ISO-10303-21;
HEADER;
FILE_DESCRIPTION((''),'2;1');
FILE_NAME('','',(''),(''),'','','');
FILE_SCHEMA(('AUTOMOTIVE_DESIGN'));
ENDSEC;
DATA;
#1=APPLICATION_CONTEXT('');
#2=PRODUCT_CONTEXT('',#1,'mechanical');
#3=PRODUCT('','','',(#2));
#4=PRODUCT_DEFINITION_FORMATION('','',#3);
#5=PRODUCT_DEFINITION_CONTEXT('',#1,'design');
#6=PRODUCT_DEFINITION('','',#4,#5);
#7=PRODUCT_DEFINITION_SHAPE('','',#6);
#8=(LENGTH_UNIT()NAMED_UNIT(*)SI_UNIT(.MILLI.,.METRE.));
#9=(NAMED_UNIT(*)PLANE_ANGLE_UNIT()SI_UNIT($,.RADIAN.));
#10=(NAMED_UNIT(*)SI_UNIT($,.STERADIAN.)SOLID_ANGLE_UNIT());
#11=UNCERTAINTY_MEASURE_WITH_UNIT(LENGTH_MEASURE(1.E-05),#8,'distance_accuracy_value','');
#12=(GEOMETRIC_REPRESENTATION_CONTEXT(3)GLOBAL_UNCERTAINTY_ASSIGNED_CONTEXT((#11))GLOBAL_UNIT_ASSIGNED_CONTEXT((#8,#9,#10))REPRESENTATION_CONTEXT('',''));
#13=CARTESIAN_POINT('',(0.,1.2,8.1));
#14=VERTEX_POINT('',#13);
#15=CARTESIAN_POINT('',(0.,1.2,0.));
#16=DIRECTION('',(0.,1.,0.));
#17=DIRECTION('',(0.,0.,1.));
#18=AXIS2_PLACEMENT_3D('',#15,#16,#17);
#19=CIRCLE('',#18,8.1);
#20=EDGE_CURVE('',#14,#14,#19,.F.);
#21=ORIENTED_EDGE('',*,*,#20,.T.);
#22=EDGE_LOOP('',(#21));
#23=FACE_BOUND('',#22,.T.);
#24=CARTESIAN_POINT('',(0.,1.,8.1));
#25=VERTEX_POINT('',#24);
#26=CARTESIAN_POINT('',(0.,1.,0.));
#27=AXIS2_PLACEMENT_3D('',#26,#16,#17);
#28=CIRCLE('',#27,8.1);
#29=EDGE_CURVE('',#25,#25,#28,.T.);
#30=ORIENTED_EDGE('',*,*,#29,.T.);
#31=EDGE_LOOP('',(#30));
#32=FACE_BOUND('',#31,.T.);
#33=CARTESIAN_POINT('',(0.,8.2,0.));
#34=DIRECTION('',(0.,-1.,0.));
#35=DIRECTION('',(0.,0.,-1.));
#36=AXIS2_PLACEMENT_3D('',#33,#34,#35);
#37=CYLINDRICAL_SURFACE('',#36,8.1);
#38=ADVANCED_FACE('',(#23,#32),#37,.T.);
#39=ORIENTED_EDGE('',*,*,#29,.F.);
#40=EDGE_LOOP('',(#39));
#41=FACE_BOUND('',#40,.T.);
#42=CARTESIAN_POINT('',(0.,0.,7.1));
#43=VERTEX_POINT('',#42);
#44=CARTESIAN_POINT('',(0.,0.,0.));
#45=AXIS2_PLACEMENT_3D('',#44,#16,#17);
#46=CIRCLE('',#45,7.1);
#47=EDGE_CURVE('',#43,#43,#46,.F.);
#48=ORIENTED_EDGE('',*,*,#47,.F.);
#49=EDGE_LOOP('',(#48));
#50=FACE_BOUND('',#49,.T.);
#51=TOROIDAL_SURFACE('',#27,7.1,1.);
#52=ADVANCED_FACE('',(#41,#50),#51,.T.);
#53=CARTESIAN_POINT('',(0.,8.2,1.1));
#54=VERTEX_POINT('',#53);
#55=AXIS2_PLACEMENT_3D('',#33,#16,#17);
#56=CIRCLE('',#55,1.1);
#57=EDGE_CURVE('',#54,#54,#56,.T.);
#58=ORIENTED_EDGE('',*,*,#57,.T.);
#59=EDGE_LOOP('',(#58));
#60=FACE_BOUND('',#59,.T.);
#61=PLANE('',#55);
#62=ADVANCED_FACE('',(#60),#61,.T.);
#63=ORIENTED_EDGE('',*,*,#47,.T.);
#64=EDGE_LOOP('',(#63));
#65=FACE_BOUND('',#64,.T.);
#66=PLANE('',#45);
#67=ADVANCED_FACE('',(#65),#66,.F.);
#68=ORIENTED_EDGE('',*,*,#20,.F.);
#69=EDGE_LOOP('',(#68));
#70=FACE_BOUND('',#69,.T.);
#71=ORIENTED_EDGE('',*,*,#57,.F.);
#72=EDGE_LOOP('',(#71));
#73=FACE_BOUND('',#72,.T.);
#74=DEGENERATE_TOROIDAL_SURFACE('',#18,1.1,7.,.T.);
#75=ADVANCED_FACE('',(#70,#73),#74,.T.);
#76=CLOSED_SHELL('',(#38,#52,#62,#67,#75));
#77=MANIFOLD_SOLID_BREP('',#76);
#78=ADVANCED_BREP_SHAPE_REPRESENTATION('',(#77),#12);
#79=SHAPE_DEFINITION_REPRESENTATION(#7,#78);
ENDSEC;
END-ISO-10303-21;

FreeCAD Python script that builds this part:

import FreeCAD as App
import Part
import Sketcher


def edges_at(feature, points):
    """Names of the edges that pass closest to the given points."""
    edges = feature.Shape.Edges
    near = lambda p: min(range(len(edges)), key=lambda i: edges[i].distToShape(Part.Vertex(*p))[0])
    return sorted({f"Edge{near(p) + 1}" for p in points})

doc = App.newDocument("Part")
params = doc.addObject("Spreadsheet::Sheet", "Params")
for row, (alias, value) in enumerate([
    ("sketch1_diameter", "16.2 mm"),
    ("pad1_length", "8.2 mm"),
    ("fillet_radius", "7 mm"),
    ("fillet2_radius", "1 mm"),
], start=1):
    params.set(f"A{row}", alias)
    params.set(f"B{row}", "=" + value)
    params.setAlias(f"B{row}", alias)

body = doc.addObject("PartDesign::Body", "Body")

# Sketch on XZ plane
sketch1 = body.newObject("Sketcher::SketchObject", "Sketch")
sketch1.AttachmentSupport = (doc.getObject("XZ_Plane"), [""])
sketch1.MapMode = "FlatFace"
sketch1.addGeometry(Part.Circle(App.Vector(0, 0, 0), App.Vector(0, 0, 1), 8.1), False)
sketch1.addConstraint(Sketcher.Constraint("Coincident", 0, 3, -1, 1))
sketch1.addConstraint(Sketcher.Constraint("Diameter", 0, 16.2))
sketch1.setExpression("Constraints[1]", "Params.sketch1_diameter")
pad1 = body.newObject("PartDesign::Pad", "Pad")
pad1.Profile = sketch1
pad1.setExpression("Length", "Params.pad1_length")
pad1.Reversed = True
doc.recompute()

fillet = body.newObject("PartDesign::Fillet", "Fillet")
fillet.Base = (pad1, edges_at(pad1, [(0, 8.2, -8.1)]))
fillet.setExpression("Radius", "Params.fillet_radius")
doc.recompute()

fillet2 = body.newObject("PartDesign::Fillet", "Fillet001")
fillet2.Base = (fillet, edges_at(fillet, [(0, 0, -8.1)]))
fillet2.setExpression("Radius", "Params.fillet2_radius")

doc.recompute()
